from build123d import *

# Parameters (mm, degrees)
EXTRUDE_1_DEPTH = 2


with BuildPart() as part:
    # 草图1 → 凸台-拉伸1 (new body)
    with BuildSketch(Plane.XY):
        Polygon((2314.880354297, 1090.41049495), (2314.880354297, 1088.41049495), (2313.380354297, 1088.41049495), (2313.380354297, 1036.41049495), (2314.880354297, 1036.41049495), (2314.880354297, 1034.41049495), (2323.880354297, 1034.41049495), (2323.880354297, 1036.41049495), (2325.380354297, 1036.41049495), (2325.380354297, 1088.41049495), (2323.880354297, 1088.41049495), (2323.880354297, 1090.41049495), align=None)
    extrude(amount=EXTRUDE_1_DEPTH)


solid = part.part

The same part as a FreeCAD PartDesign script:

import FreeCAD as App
import Part
import Sketcher
from FreeCAD import Vector
Q = App.Units.Quantity

doc = App.newDocument("Part")
params = doc.addObject("Spreadsheet::Sheet", "Params")
for row, (alias, value) in enumerate([
    ("sketch1_width", "9 mm"),
    ("sketch1_height", "2 mm"),
    ("sketch1_height2", "52 mm"),
    ("sketch1_width2", "1.5 mm"),
    ("pad1_length", "2 mm"),
], start=1):
    params.set(f"A{row}", alias)
    params.set(f"B{row}", "=" + value)
    params.setAlias(f"B{row}", alias)

body = doc.addObject("PartDesign::Body", "Body")

sketch1 = body.newObject("Sketcher::SketchObject", "Sketch")
sketch1.AttachmentSupport = (doc.getObject("XY_Plane"), [""])
sketch1.MapMode = "FlatFace"
sketch1.addGeometry(Part.LineSegment(Vector(2314.9, 1090.4, 0), Vector(2314.9, 1088.4, 0)), False)
sketch1.addGeometry(Part.LineSegment(Vector(2314.9, 1088.4, 0), Vector(2313.4, 1088.4, 0)), False)
sketch1.addGeometry(Part.LineSegment(Vector(2313.4, 1088.4, 0), Vector(2313.4, 1036.4, 0)), False)
sketch1.addGeometry(Part.LineSegment(Vector(2313.4, 1036.4, 0), Vector(2314.9, 1036.4, 0)), False)
sketch1.addGeometry(Part.LineSegment(Vector(2314.9, 1036.4, 0), Vector(2314.9, 1034.4, 0)), False)
sketch1.addGeometry(Part.LineSegment(Vector(2314.9, 1034.4, 0), Vector(2323.9, 1034.4, 0)), False)
sketch1.addGeometry(Part.LineSegment(Vector(2323.9, 1034.4, 0), Vector(2323.9, 1036.4, 0)), False)
sketch1.addGeometry(Part.LineSegment(Vector(2323.9, 1036.4, 0), Vector(2325.4, 1036.4, 0)), False)
sketch1.addGeometry(Part.LineSegment(Vector(2325.4, 1036.4, 0), Vector(2325.4, 1088.4, 0)), False)
sketch1.addGeometry(Part.LineSegment(Vector(2325.4, 1088.4, 0), Vector(2323.9, 1088.4, 0)), False)
sketch1.addGeometry(Part.LineSegment(Vector(2323.9, 1088.4, 0), Vector(2323.9, 1090.4, 0)), False)
sketch1.addGeometry(Part.LineSegment(Vector(2323.9, 1090.4, 0), Vector(2314.9, 1090.4, 0)), False)
sketch1.addConstraint(Sketcher.Constraint("Coincident", 0, 2, 1, 1))
sketch1.addConstraint(Sketcher.Constraint("Coincident", 1, 2, 2, 1))
sketch1.addConstraint(Sketcher.Constraint("Coincident", 2, 2, 3, 1))
sketch1.addConstraint(Sketcher.Constraint("Coincident", 3, 2, 4, 1))
sketch1.addConstraint(Sketcher.Constraint("Coincident", 4, 2, 5, 1))
sketch1.addConstraint(Sketcher.Constraint("Coincident", 5, 2, 6, 1))
sketch1.addConstraint(Sketcher.Constraint("Coincident", 6, 2, 7, 1))
sketch1.addConstraint(Sketcher.Constraint("Coincident", 7, 2, 8, 1))
sketch1.addConstraint(Sketcher.Constraint("Coincident", 8, 2, 9, 1))
sketch1.addConstraint(Sketcher.Constraint("Coincident", 9, 2, 10, 1))
sketch1.addConstraint(Sketcher.Constraint("Coincident", 10, 2, 11, 1))
sketch1.addConstraint(Sketcher.Constraint("Coincident", 11, 2, 0, 1))
sketch1.addConstraint(Sketcher.Constraint("Vertical", 0))
sketch1.addConstraint(Sketcher.Constraint("Horizontal", 1))
sketch1.addConstraint(Sketcher.Constraint("Vertical", 2))
sketch1.addConstraint(Sketcher.Constraint("Horizontal", 3))
sketch1.addConstraint(Sketcher.Constraint("Vertical", 4))
sketch1.addConstraint(Sketcher.Constraint("Horizontal", 5))
sketch1.addConstraint(Sketcher.Constraint("Vertical", 6))
sketch1.addConstraint(Sketcher.Constraint("Horizontal", 7))
sketch1.addConstraint(Sketcher.Constraint("Vertical", 8))
sketch1.addConstraint(Sketcher.Constraint("Horizontal", 9))
sketch1.addConstraint(Sketcher.Constraint("Vertical", 10))
sketch1.addConstraint(Sketcher.Constraint("Horizontal", 11))
sketch1.addConstraint(Sketcher.Constraint("Horizontal", 3, 2, 6, 2))
sketch1.addConstraint(Sketcher.Constraint("Horizontal", 1, 2, 8, 2))
sketch1.addConstraint(Sketcher.Constraint("Vertical", 0, 2, 3, 2))
sketch1.addConstraint(Sketcher.Constraint("Vertical", 6, 2, 9, 2))
sketch1.addConstraint(Sketcher.Constraint("Equal", 3, 7))
sketch1.addConstraint(Sketcher.Constraint("Equal", 0, 4))
sketch1.addConstraint(Sketcher.Constraint("DistanceX", 5, 1, 5, 2, Q("9 mm")))
sketch1.addConstraint(Sketcher.Constraint("DistanceY", 0, 2, 0, 1, Q("2 mm")))
sketch1.addConstraint(Sketcher.Constraint("DistanceY", 2, 2, 2, 1, Q("52 mm")))
sketch1.addConstraint(Sketcher.Constraint("DistanceX", 1, 2, 1, 1, Q("1.5 mm")))
sketch1.addConstraint(Sketcher.Constraint("DistanceX", -1, 1, 0, 2, Q("2314.880354 mm")))
sketch1.addConstraint(Sketcher.Constraint("DistanceY", -1, 1, 0, 2, Q("1088.410495 mm")))
sketch1.setExpression("Constraints[30]", "Params.sketch1_width")
sketch1.setExpression("Constraints[31]", "Params.sketch1_height")
sketch1.setExpression("Constraints[32]", "Params.sketch1_height2")
sketch1.setExpression("Constraints[33]", "Params.sketch1_width2")
pad1 = body.newObject("PartDesign::Pad", "Pad")
pad1.Profile = sketch1
pad1.setExpression("Length", "Params.pad1_length")

doc.recompute()
